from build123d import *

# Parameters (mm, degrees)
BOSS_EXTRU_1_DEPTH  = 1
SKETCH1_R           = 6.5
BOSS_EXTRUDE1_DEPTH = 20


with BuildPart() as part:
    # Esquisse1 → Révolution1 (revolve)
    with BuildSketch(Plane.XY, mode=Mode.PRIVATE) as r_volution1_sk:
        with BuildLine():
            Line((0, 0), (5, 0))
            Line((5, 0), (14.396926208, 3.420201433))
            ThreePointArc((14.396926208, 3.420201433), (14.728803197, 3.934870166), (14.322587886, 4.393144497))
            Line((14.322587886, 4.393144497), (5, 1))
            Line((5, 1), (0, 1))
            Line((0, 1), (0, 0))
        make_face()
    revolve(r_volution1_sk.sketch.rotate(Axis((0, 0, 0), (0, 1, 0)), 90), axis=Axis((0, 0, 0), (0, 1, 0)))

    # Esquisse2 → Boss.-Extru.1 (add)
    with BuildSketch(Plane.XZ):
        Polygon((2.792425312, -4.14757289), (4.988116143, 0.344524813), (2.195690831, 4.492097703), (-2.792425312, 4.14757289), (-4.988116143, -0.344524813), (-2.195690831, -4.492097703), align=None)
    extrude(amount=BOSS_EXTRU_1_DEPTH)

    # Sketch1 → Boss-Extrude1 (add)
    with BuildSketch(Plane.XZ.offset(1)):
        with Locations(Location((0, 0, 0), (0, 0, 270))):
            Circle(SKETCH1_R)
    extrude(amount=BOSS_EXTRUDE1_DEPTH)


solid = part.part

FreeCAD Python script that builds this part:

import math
import FreeCAD as App
import Part
import Sketcher
from FreeCAD import Vector
Q = App.Units.Quantity


def add_polygon(sketch, points):
    """Adds a closed chain of lines whose ends are joined by coincident constraints."""
    first, n = sketch.GeometryCount, len(points)
    for a, b in zip(points, points[1:] + points[:1]):
        sketch.addGeometry(Part.LineSegment(App.Vector(*a, 0), App.Vector(*b, 0)), False)
    for i in range(n):
        sketch.addConstraint(Sketcher.Constraint("Coincident", first + i, 2, first + (i + 1) % n, 1))

doc = App.newDocument("Part")
params = doc.addObject("Spreadsheet::Sheet", "Params")
for row, (alias, value) in enumerate([
    ("sketch1_width", "5 mm"),
    ("sketch1_height", "1 mm"),
    ("sketch1_length", "10 mm"),
    ("revolution_angle", "360 deg"),
    ("sketch2_length", "5 mm"),
    ("pad1_length", "1 mm"),
    ("sketch3_diameter", "13 mm"),
    ("pad2_length", "20 mm"),
], start=1):
    params.set(f"A{row}", alias)
    params.set(f"B{row}", "=" + value)
    params.setAlias(f"B{row}", alias)

body = doc.addObject("PartDesign::Body", "Body")

sketch1 = body.newObject("Sketcher::SketchObject", "Sketch")
sketch1.AttachmentSupport = (doc.getObject("XY_Plane"), [""])
sketch1.MapMode = "FlatFace"
sketch1.addGeometry(Part.LineSegment(Vector(0, 0, 0), Vector(5, 0, 0)), False)
sketch1.addGeometry(Part.LineSegment(Vector(5, 0, 0), Vector(14.4, 3.4, 0)), False)
sketch1.addGeometry(Part.ArcOfCircle(Part.Circle(Vector(14.2, 3.9, 0), Vector(0, 0, 1), 0.5), math.radians(-70), math.radians(79)), False)
sketch1.addGeometry(Part.LineSegment(Vector(14.3, 4.4, 0), Vector(5, 1, 0)), False)
sketch1.addGeometry(Part.LineSegment(Vector(5, 1, 0), Vector(0, 1, 0)), False)
sketch1.addGeometry(Part.LineSegment(Vector(0, 1, 0), Vector(0, 0, 0)), False)
sketch1.addConstraint(Sketcher.Constraint("Coincident", 0, 2, 1, 1))
sketch1.addConstraint(Sketcher.Constraint("Tangent", 1, 2, 2, 1))
sketch1.addConstraint(Sketcher.Constraint("Coincident", 2, 2, 3, 1))
sketch1.addConstraint(Sketcher.Constraint("Coincident", 3, 2, 4, 1))
sketch1.addConstraint(Sketcher.Constraint("Coincident", 4, 2, 5, 1))
sketch1.addConstraint(Sketcher.Constraint("Coincident", 5, 2, 0, 1))
sketch1.addConstraint(Sketcher.Constraint("Horizontal", 0))
sketch1.addConstraint(Sketcher.Constraint("Horizontal", 4))
sketch1.addConstraint(Sketcher.Constraint("Vertical", 5))
sketch1.addConstraint(Sketcher.Constraint("Coincident", 5, 2, -1, 1))
sketch1.addConstraint(Sketcher.Constraint("Parallel", 1, 3))
sketch1.addConstraint(Sketcher.Constraint("Vertical", 0, 2, 3, 2))
sketch1.addConstraint(Sketcher.Constraint("DistanceX", 0, 1, 0, 2, 5.0))
sketch1.addConstraint(Sketcher.Constraint("DistanceY", 5, 2, 5, 1, 1.0))
sketch1.addConstraint(Sketcher.Constraint("Angle", 1, Q("20 deg")))
sketch1.addConstraint(Sketcher.Constraint("Distance", 1, 10.0))
sketch1.addConstraint(Sketcher.Constraint("Radius", 2, 0.506625))
sketch1.setExpression("Constraints[12]", "Params.sketch1_width")
sketch1.setExpression("Constraints[13]", "Params.sketch1_height")
sketch1.setExpression("Constraints[15]", "Params.sketch1_length")
revolution = body.newObject("PartDesign::Revolution", "Revolution")
revolution.Profile = sketch1
revolution.ReferenceAxis = (sketch1, ["V_Axis"])
revolution.setExpression("Angle", "Params.revolution_angle")

sketch2 = body.newObject("Sketcher::SketchObject", "Sketch001")
sketch2.AttachmentSupport = (doc.getObject("XZ_Plane"), [""])
sketch2.MapMode = "FlatFace"
add_polygon(sketch2, [(2.8, -4.1), (5, 0.3), (2.2, 4.5), (-2.8, 4.1), (-5, -0.3), (-2.2, -4.5)])
sketch2.addConstraint(Sketcher.Constraint("Symmetric", 0, 2, 3, 2, -1, 1))
sketch2.addConstraint(Sketcher.Constraint("Symmetric", 1, 2, 4, 2, -1, 1))
sketch2.addConstraint(Sketcher.Constraint("Symmetric", 2, 2, 5, 2, -1, 1))
sketch2.addConstraint(Sketcher.Constraint("Equal", 0, 1))
sketch2.addConstraint(Sketcher.Constraint("Equal", 1, 2))
sketch2.addConstraint(Sketcher.Constraint("Distance", 0, 5.0))
sketch2.addConstraint(Sketcher.Constraint("DistanceX", -1, 1, 1, 2, 2.195691))
sketch2.addConstraint(Sketcher.Constraint("DistanceX", 2, 2, 0, 2, 7.780541))
sketch2.addConstraint(Sketcher.Constraint("DistanceY", 0, 2, 2, 2, 3.803048))
sketch2.setExpression("Constraints[11]", "Params.sketch2_length")
pad1 = body.newObject("PartDesign::Pad", "Pad")
pad1.Profile = sketch2
pad1.setExpression("Length", "Params.pad1_length")

sketch3 = body.newObject("Sketcher::SketchObject", "Sketch002")
sketch3.AttachmentSupport = (doc.getObject("XZ_Plane"), [""])
sketch3.MapMode = "FlatFace"
sketch3.AttachmentOffset = App.Placement(Vector(0, 0, 1), App.Rotation())
sketch3.addGeometry(Part.Circle(Vector(0, 0, 0), Vector(0, 0, 1), 6), False)
sketch3.addConstraint(Sketcher.Constraint("Coincident", 0, 3, -1, 1))
sketch3.addConstraint(Sketcher.Constraint("Diameter", 0, 13.0))
sketch3.setExpression("Constraints[1]", "Params.sketch3_diameter")
pad2 = body.newObject("PartDesign::Pad", "Pad001")
pad2.Profile = sketch3
pad2.setExpression("Length", "Params.pad2_length")

doc.recompute()
